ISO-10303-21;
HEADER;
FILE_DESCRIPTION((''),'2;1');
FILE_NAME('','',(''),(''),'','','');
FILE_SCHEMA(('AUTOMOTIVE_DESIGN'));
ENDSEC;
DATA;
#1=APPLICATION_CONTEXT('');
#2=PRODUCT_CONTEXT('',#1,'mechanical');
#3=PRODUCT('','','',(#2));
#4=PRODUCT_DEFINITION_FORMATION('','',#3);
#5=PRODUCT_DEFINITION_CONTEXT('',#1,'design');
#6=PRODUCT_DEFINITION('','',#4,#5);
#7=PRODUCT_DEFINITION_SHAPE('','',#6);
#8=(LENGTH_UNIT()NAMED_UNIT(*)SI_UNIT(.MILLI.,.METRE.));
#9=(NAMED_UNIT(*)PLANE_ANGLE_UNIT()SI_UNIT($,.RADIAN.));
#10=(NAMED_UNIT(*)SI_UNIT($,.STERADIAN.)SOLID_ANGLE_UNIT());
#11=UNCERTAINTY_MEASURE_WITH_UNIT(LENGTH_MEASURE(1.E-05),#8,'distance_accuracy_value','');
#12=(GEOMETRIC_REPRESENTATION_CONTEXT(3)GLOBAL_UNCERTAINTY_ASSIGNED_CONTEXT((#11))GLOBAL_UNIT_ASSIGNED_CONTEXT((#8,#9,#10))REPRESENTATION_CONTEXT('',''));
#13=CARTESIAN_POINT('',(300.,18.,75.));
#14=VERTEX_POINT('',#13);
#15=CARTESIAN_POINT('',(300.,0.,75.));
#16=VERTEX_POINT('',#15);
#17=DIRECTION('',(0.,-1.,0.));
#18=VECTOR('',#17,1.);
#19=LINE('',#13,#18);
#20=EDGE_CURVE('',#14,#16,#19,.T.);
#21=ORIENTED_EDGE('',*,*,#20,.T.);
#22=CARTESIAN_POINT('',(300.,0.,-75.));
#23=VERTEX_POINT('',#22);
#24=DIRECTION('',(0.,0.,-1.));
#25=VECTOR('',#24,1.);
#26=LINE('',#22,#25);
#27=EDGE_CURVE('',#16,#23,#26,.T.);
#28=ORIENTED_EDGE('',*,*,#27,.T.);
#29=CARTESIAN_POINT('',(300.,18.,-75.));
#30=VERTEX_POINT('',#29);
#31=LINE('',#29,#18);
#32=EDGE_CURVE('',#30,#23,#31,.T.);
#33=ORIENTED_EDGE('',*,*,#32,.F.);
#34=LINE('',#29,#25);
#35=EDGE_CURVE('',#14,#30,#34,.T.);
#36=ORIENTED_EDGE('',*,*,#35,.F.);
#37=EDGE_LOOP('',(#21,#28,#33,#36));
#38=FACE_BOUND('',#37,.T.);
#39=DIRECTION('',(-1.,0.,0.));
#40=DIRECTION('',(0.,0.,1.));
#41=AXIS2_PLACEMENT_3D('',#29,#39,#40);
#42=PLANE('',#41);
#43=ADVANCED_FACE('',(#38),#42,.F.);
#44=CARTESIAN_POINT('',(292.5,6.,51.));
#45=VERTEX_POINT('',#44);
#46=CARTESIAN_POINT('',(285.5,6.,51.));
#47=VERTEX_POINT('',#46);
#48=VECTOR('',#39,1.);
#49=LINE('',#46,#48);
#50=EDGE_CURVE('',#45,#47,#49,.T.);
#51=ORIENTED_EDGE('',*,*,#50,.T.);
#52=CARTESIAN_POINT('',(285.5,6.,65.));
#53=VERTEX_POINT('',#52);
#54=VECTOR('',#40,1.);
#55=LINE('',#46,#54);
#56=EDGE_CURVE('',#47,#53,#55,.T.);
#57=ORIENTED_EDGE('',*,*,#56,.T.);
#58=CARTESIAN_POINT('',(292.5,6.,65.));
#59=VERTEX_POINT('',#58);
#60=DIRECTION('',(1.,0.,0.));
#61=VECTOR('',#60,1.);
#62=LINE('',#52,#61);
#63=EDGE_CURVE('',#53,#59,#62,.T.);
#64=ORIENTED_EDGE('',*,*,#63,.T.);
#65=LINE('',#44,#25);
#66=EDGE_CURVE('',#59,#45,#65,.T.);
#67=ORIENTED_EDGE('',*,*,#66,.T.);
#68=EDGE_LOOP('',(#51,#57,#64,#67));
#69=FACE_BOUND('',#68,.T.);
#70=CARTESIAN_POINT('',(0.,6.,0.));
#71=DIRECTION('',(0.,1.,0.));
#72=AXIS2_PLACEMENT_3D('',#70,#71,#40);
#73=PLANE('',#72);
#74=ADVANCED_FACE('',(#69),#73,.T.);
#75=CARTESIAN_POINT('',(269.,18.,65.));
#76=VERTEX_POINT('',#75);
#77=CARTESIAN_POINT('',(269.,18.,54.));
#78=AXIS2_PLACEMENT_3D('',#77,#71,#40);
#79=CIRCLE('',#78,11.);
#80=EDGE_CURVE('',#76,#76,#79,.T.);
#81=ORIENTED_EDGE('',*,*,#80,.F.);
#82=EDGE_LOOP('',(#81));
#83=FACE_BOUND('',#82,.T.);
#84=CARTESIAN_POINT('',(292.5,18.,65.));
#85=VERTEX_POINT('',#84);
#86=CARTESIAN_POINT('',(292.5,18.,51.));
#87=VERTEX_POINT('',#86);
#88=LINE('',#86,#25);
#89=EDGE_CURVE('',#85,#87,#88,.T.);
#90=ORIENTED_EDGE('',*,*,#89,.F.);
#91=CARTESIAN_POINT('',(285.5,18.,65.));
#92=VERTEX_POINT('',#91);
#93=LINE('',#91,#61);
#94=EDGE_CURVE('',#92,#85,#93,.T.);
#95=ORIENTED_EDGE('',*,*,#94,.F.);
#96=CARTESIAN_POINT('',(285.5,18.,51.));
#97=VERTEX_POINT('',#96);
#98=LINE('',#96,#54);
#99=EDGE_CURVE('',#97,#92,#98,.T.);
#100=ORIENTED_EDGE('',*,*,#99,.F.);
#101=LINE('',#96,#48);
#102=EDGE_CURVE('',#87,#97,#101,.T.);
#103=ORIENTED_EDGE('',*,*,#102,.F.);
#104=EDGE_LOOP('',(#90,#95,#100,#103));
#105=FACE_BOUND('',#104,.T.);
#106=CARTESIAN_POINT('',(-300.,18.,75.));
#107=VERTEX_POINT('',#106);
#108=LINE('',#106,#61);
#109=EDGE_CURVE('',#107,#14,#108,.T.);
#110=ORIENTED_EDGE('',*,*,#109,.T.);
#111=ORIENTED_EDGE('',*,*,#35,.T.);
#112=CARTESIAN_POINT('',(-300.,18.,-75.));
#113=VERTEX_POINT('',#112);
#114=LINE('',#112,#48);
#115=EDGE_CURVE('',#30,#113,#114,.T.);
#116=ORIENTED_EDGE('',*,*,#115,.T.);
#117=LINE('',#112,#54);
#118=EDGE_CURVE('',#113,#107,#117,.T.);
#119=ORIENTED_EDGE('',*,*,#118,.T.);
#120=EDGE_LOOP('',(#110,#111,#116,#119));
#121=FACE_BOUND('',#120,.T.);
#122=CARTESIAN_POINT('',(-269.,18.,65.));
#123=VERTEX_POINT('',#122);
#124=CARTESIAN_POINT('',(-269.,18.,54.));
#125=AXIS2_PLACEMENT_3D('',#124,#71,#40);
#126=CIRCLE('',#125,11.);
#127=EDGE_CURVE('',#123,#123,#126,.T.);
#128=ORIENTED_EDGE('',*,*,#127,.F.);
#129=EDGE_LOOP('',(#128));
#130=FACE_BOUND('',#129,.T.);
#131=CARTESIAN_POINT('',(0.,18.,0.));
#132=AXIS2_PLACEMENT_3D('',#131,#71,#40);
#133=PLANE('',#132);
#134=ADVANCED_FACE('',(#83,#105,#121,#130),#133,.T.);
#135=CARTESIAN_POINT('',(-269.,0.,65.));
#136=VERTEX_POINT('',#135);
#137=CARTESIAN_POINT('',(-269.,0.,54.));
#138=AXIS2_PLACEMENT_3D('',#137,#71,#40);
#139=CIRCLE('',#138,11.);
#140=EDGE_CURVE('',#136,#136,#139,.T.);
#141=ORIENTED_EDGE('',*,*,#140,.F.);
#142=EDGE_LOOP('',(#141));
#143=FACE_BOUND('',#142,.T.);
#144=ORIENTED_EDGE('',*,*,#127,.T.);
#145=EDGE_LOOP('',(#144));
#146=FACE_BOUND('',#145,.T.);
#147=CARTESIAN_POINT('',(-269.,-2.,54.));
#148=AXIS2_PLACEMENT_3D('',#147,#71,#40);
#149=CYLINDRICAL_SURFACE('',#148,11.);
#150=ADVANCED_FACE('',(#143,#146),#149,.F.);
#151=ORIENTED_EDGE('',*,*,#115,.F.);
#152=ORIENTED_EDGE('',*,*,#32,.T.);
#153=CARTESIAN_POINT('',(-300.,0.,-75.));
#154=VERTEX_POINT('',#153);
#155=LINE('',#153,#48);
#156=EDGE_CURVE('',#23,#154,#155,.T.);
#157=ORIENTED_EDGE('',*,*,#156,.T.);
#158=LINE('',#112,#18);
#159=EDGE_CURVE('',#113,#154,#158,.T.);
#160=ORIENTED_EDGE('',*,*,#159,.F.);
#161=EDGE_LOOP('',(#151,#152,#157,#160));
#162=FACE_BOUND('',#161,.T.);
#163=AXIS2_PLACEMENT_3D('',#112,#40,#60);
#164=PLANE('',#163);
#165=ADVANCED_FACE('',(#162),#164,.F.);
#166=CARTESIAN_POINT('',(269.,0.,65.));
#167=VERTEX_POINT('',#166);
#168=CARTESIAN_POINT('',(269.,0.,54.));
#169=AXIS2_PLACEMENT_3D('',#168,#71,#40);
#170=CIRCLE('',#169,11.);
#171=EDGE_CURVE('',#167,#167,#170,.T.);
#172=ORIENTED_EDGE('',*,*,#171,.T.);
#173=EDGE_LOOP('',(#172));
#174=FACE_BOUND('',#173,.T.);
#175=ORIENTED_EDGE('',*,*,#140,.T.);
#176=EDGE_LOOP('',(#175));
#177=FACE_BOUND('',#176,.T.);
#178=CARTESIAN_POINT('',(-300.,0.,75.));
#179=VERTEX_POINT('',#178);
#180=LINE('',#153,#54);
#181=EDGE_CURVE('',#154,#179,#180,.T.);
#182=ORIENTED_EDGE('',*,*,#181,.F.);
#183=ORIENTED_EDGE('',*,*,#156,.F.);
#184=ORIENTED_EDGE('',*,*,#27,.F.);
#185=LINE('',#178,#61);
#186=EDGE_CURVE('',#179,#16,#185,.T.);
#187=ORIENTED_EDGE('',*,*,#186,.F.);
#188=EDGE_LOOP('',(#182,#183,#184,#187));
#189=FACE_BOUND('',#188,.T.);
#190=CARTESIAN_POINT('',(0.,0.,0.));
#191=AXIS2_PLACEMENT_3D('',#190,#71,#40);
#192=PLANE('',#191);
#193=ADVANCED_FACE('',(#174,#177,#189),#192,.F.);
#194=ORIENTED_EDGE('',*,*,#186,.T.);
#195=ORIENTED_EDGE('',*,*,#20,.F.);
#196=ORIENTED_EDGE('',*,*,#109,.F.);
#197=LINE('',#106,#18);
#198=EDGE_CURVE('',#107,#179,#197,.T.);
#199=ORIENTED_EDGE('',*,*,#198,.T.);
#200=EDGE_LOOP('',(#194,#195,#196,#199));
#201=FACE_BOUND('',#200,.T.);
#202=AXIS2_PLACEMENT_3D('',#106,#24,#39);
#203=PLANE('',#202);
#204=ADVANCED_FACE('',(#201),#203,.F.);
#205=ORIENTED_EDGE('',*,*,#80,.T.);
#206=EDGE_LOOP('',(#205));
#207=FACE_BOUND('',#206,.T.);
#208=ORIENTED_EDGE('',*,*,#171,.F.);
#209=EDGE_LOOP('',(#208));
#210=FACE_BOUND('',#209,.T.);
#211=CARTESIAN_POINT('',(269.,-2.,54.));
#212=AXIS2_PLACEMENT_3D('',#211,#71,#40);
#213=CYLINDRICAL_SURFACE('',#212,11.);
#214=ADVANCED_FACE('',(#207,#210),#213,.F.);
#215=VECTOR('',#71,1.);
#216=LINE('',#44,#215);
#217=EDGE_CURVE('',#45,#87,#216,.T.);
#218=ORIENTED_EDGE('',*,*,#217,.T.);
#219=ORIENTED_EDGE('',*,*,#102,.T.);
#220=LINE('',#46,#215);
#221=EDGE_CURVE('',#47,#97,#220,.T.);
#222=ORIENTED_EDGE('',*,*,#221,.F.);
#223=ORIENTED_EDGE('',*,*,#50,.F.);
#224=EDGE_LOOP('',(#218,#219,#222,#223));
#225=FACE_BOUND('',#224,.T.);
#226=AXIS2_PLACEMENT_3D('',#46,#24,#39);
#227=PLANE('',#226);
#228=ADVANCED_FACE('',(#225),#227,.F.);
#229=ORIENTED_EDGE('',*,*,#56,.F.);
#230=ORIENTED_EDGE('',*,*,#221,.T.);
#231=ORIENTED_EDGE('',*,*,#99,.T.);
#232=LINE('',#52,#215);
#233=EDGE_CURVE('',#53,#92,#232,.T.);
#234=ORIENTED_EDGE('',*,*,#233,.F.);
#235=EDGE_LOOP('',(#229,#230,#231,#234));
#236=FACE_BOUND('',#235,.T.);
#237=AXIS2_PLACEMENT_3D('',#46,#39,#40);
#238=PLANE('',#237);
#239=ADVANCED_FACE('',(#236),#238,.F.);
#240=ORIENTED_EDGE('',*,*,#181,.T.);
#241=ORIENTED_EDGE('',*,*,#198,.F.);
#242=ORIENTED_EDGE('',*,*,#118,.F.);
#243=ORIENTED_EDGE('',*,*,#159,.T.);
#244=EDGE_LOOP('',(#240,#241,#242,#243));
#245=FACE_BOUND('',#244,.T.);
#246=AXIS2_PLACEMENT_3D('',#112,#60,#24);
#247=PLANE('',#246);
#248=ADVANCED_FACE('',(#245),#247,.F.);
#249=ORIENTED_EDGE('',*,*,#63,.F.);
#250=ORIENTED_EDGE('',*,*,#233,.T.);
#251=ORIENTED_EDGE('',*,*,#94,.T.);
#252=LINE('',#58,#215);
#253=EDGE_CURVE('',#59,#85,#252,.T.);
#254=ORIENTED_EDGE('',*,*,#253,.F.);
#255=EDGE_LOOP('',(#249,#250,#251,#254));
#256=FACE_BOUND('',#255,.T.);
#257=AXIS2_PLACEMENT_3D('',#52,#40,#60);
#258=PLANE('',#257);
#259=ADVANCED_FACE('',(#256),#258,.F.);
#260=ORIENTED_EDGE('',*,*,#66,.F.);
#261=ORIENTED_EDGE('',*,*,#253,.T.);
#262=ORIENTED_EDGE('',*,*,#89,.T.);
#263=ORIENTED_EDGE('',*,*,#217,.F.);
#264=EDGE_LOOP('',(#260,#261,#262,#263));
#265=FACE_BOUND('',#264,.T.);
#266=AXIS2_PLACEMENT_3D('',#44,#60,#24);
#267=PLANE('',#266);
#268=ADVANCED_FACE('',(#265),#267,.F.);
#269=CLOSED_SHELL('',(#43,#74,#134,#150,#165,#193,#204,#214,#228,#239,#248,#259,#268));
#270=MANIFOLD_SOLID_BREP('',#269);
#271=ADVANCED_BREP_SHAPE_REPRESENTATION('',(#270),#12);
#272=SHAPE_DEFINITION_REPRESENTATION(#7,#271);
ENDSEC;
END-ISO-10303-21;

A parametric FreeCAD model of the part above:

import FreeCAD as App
import Part
import Sketcher
from FreeCAD import Vector
Q = App.Units.Quantity

doc = App.newDocument("Part")
body = doc.addObject("PartDesign::Body", "Body")

sketch1 = body.newObject("Sketcher::SketchObject", "Sketch")
sketch1.AttachmentSupport = (doc.getObject("XZ_Plane"), [""])
sketch1.MapMode = "FlatFace"
sketch1.addGeometry(Part.LineSegment(Vector(-300, -75, 0), Vector(-300, 75, 0)), False)
sketch1.addGeometry(Part.LineSegment(Vector(-300, 75, 0), Vector(300, 75, 0)), False)
sketch1.addGeometry(Part.LineSegment(Vector(300, 75, 0), Vector(300, -75, 0)), False)
sketch1.addGeometry(Part.LineSegment(Vector(300, -75, 0), Vector(-300, -75, 0)), False)
sketch1.addConstraint(Sketcher.Constraint("Coincident", 0, 2, 1, 1))
sketch1.addConstraint(Sketcher.Constraint("Coincident", 1, 2, 2, 1))
sketch1.addConstraint(Sketcher.Constraint("Coincident", 2, 2, 3, 1))
sketch1.addConstraint(Sketcher.Constraint("Coincident", 3, 2, 0, 1))
sketch1.addConstraint(Sketcher.Constraint("Vertical", 0))
sketch1.addConstraint(Sketcher.Constraint("Horizontal", 1))
sketch1.addConstraint(Sketcher.Constraint("Vertical", 2))
sketch1.addConstraint(Sketcher.Constraint("Horizontal", 3))
sketch1.addConstraint(Sketcher.Constraint("Symmetric", 0, 2, 2, 2, -1, 1))
sketch1.addConstraint(Sketcher.Constraint("DistanceX", 1, 1, 1, 2, Q("600 mm")))
sketch1.addConstraint(Sketcher.Constraint("DistanceY", 0, 1, 0, 2, Q("150 mm")))
pad1 = body.newObject("PartDesign::Pad", "Pad")
pad1.Profile = sketch1
pad1.Length = 18
pad1.Reversed = True

sketch2 = body.newObject("Sketcher::SketchObject", "Sketch001")
sketch2.AttachmentSupport = (doc.getObject("XZ_Plane"), [""])
sketch2.MapMode = "FlatFace"
sketch2.AttachmentOffset = App.Placement(Vector(0, 0, -18), App.Rotation())
sketch2.addGeometry(Part.Circle(Vector(269, 54, 0), Vector(0, 0, 1), 11), False)
sketch2.addGeometry(Part.Circle(Vector(-269, 54, 0), Vector(0, 0, 1), 11), False)
sketch2.addConstraint(Sketcher.Constraint("Equal", 0, 1))
sketch2.addConstraint(Sketcher.Constraint("Symmetric", 0, 3, 1, 3, -2))
sketch2.addConstraint(Sketcher.Constraint("Diameter", 0, Q("22 mm")))
sketch2.addConstraint(Sketcher.Constraint("DistanceX", -1, 1, 0, 3, Q("269 mm")))
sketch2.addConstraint(Sketcher.Constraint("DistanceY", -1, 1, 0, 3, Q("54 mm")))
pocket1 = body.newObject("PartDesign::Pocket", "Pocket")
pocket1.Profile = sketch2
pocket1.Length = 20
pocket1.Reversed = True

sketch3 = body.newObject("Sketcher::SketchObject", "Sketch002")
sketch3.AttachmentSupport = (doc.getObject("XZ_Plane"), [""])
sketch3.MapMode = "FlatFace"
sketch3.AttachmentOffset = App.Placement(Vector(0, 0, -18), App.Rotation())
sketch3.addGeometry(Part.LineSegment(Vector(286, 51, 0), Vector(286, 65, 0)), False)
sketch3.addGeometry(Part.LineSegment(Vector(286, 65, 0), Vector(292, 65, 0)), False)
sketch3.addGeometry(Part.LineSegment(Vector(292, 65, 0), Vector(292, 51, 0)), False)
sketch3.addGeometry(Part.LineSegment(Vector(292, 51, 0), Vector(286, 51, 0)), False)
sketch3.addConstraint(Sketcher.Constraint("Coincident", 0, 2, 1, 1))
sketch3.addConstraint(Sketcher.Constraint("Coincident", 1, 2, 2, 1))
sketch3.addConstraint(Sketcher.Constraint("Coincident", 2, 2, 3, 1))
sketch3.addConstraint(Sketcher.Constraint("Coincident", 3, 2, 0, 1))
sketch3.addConstraint(Sketcher.Constraint("Vertical", 0))
sketch3.addConstraint(Sketcher.Constraint("Horizontal", 1))
sketch3.addConstraint(Sketcher.Constraint("Vertical", 2))
sketch3.addConstraint(Sketcher.Constraint("Horizontal", 3))
sketch3.addConstraint(Sketcher.Constraint("DistanceX", 1, 1, 1, 2, Q("7 mm")))
sketch3.addConstraint(Sketcher.Constraint("DistanceY", 0, 1, 0, 2, Q("14 mm")))
sketch3.addConstraint(Sketcher.Constraint("DistanceY", -1, 1, 0, 2, Q("65 mm")))
sketch3.addConstraint(Sketcher.Constraint("DistanceX", -1, 1, 0, 2, Q("285.5 mm")))
pocket2 = body.newObject("PartDesign::Pocket", "Pocket001")
pocket2.Profile = sketch3
pocket2.Length = 12
pocket2.Reversed = True

doc.recompute()
